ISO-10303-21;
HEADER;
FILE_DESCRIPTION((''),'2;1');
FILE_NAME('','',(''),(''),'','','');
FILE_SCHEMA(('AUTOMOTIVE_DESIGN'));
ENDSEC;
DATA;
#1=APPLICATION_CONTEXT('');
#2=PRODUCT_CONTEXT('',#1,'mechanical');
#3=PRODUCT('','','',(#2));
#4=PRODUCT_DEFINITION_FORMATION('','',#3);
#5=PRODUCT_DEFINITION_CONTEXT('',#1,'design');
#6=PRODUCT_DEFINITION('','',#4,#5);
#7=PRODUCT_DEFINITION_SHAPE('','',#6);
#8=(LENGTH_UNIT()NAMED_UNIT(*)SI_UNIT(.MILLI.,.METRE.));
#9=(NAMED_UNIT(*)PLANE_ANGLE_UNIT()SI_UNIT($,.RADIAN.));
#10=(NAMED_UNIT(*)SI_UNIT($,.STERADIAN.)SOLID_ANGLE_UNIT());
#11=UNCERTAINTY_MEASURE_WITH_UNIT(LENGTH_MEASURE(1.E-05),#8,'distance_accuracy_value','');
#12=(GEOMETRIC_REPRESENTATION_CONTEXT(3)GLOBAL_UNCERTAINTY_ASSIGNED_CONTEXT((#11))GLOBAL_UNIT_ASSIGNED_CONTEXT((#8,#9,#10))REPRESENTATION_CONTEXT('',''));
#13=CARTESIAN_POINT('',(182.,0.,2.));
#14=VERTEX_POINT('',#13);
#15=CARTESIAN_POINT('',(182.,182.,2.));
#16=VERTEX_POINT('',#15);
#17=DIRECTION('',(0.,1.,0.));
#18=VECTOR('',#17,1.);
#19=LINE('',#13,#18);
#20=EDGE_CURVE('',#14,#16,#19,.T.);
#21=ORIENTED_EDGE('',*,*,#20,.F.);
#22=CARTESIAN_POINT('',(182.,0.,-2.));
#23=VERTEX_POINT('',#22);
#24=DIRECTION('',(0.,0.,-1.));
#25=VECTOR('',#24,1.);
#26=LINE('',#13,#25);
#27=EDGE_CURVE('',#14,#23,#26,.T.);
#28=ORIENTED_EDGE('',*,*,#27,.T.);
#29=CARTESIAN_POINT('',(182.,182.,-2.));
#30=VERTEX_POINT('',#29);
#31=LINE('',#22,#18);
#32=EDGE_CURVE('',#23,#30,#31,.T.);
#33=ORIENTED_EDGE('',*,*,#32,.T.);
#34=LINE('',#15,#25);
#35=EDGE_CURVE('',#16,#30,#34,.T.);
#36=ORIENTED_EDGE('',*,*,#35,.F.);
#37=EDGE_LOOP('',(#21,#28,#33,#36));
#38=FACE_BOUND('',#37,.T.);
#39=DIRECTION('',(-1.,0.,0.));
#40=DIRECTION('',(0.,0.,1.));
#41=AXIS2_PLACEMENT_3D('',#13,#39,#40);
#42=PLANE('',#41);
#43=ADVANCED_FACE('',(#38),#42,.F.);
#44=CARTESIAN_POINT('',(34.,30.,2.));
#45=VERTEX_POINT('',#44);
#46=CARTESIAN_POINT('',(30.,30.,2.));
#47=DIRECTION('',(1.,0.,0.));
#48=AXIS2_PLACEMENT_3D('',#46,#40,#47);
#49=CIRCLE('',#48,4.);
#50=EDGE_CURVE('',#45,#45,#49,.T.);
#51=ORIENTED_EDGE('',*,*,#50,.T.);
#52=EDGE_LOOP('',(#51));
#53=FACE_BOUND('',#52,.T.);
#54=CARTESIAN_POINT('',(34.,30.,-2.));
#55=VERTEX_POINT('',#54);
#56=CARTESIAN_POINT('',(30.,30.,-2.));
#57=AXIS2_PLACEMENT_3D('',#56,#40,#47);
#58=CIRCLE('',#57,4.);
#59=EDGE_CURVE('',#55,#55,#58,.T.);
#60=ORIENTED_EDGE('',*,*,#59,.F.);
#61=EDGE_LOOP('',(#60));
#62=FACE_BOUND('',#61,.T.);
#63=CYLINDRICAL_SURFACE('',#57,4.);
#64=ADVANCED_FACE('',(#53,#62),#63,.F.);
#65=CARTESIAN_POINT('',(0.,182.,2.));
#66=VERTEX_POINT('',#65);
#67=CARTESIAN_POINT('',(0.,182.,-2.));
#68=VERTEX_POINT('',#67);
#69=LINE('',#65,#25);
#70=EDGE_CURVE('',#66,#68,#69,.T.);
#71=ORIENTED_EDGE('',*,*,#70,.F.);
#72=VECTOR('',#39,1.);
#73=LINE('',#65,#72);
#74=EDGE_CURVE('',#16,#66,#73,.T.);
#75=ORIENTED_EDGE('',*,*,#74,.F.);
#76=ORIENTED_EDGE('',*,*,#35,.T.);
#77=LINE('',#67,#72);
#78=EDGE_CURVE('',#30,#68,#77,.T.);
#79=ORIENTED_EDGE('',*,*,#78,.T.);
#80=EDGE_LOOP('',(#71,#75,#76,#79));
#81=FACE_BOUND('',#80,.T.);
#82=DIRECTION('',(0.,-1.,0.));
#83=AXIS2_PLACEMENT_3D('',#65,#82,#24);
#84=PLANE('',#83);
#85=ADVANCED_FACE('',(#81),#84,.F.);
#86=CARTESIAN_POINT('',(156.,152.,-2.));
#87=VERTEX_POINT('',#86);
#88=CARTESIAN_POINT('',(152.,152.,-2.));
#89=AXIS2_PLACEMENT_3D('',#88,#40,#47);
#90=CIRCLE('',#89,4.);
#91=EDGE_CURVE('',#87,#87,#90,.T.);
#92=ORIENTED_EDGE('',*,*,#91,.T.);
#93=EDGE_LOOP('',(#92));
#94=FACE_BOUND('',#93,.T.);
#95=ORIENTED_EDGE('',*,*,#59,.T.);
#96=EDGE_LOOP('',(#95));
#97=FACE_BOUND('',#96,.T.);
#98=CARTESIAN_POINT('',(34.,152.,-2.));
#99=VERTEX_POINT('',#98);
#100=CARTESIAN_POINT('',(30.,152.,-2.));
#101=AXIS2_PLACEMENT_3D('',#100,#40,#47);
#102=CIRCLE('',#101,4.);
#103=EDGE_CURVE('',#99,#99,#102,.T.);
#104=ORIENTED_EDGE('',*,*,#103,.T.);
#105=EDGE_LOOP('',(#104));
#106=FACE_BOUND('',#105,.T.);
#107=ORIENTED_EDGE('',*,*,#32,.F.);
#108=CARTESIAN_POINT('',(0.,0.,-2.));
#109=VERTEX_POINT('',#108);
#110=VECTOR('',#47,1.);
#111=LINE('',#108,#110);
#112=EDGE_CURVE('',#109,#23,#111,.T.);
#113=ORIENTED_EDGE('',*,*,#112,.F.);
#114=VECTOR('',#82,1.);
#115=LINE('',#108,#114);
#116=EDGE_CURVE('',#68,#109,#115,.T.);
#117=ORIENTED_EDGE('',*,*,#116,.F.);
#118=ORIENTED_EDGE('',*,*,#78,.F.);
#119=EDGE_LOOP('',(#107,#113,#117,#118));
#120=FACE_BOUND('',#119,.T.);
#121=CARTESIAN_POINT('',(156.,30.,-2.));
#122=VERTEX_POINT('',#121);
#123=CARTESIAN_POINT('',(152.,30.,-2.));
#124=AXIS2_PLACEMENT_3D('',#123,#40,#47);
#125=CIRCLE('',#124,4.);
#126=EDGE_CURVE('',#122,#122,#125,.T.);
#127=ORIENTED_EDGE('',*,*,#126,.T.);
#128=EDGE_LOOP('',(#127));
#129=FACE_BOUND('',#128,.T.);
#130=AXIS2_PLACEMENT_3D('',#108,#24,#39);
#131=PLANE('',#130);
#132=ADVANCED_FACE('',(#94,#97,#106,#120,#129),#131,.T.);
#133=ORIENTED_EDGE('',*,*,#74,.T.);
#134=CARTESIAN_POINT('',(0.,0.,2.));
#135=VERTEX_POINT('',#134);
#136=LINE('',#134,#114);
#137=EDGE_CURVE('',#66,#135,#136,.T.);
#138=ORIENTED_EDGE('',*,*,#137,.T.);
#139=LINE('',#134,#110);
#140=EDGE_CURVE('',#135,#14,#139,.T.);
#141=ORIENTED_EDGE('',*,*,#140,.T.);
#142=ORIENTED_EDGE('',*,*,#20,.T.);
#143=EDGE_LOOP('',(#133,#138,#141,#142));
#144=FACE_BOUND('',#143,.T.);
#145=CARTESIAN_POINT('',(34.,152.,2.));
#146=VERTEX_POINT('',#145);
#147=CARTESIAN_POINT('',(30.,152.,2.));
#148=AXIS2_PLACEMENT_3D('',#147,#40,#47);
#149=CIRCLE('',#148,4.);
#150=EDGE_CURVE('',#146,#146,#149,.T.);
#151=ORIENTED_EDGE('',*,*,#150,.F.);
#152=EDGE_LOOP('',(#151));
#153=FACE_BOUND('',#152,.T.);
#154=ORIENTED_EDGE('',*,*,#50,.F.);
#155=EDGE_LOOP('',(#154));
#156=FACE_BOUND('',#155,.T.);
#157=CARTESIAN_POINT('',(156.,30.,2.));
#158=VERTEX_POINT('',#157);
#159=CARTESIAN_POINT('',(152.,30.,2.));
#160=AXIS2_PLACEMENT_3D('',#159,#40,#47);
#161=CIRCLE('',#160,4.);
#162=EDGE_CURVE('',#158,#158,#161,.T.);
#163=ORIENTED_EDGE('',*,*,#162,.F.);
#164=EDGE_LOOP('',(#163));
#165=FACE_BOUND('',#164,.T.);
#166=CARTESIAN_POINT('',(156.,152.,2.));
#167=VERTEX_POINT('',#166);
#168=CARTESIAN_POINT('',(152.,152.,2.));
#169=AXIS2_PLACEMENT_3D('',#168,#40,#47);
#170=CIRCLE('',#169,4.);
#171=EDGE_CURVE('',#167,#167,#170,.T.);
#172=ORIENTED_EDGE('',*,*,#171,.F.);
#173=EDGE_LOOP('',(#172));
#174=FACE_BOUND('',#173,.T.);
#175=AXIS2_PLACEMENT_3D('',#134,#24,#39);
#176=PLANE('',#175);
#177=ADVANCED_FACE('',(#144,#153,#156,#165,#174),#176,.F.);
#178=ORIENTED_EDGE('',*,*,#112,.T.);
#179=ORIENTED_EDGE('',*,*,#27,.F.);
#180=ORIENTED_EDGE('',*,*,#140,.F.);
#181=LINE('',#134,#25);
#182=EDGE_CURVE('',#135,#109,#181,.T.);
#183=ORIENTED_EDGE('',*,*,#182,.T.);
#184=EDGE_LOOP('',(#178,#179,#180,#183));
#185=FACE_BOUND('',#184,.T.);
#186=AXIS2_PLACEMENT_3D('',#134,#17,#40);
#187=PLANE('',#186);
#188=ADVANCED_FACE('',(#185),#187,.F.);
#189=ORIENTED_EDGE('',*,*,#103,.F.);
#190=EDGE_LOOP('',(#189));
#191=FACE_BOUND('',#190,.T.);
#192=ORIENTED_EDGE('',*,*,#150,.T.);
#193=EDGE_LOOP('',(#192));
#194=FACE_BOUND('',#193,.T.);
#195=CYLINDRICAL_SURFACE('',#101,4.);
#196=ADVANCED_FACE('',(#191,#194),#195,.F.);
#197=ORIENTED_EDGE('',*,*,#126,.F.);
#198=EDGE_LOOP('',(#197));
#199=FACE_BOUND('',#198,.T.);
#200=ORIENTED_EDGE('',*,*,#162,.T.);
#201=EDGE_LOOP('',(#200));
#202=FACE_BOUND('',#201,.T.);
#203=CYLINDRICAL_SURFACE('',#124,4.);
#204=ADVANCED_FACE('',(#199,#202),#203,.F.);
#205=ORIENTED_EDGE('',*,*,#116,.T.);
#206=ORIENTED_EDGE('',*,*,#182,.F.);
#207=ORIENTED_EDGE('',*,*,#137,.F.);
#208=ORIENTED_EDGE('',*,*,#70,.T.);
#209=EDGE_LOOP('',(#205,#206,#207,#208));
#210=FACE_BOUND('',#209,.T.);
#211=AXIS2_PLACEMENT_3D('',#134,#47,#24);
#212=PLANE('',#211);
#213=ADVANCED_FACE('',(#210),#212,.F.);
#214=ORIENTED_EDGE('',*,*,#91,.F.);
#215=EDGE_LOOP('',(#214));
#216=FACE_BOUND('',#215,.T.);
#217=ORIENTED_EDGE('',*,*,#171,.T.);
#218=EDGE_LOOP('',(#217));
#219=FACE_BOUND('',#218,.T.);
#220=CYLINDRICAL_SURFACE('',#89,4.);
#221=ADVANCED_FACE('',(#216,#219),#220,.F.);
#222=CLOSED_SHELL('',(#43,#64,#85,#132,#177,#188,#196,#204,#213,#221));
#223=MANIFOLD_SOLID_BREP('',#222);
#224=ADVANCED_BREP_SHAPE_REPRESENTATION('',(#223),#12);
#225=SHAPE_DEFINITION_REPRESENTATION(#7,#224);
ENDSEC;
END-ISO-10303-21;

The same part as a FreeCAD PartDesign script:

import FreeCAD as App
import Part
import Sketcher
from FreeCAD import Vector


def add_polygon(sketch, points):
    """Adds a closed chain of lines whose ends are joined by coincident constraints."""
    first, n = sketch.GeometryCount, len(points)
    for a, b in zip(points, points[1:] + points[:1]):
        sketch.addGeometry(Part.LineSegment(App.Vector(*a, 0), App.Vector(*b, 0)), False)
    for i in range(n):
        sketch.addConstraint(Sketcher.Constraint("Coincident", first + i, 2, first + (i + 1) % n, 1))

doc = App.newDocument("Part")
body = doc.addObject("PartDesign::Body", "Body")

# Sketch on XY plane
sketch1 = body.newObject("Sketcher::SketchObject", "Sketch")
sketch1.AttachmentSupport = (doc.getObject("XY_Plane"), [""])
sketch1.MapMode = "FlatFace"
add_polygon(sketch1, [(0, 182), (0, 0), (182, 0), (182, 182)])  # lines 0-3
sketch1.addConstraint([
    Sketcher.Constraint("Vertical", 0),
    Sketcher.Constraint("Horizontal", 1),
    Sketcher.Constraint("Vertical", 2),
    Sketcher.Constraint("Horizontal", 3),
    Sketcher.Constraint("Coincident", 0, 2, -1, 1),
    Sketcher.Constraint("Equal", 3, 0),
    Sketcher.Constraint("DistanceX", 1, 1, 1, 2, 182.0),
])
pad1 = body.newObject("PartDesign::Pad", "Pad")
pad1.Profile = sketch1
pad1.Length = 4
pad1.Midplane = True

# Sketch on XY plane
sketch2 = body.newObject("Sketcher::SketchObject", "Sketch001")
sketch2.AttachmentSupport = (doc.getObject("XY_Plane"), [""])
sketch2.MapMode = "FlatFace"
sketch2.AttachmentOffset = App.Placement(Vector(0, 0, 2), App.Rotation())
sketch2.addGeometry([
    Part.Circle(Vector(30, 152, 0), Vector(0, 0, 1), 4),
    Part.Circle(Vector(152, 152, 0), Vector(0, 0, 1), 4),
    Part.Circle(Vector(152, 30, 0), Vector(0, 0, 1), 4),
    Part.Circle(Vector(30, 30, 0), Vector(0, 0, 1), 4),
], False)
sketch2.addConstraint([
    Sketcher.Constraint("Equal", 0, 1),
    Sketcher.Constraint("Equal", 1, 2),
    Sketcher.Constraint("Equal", 2, 3),
    Sketcher.Constraint("Horizontal", 0, 3, 1, 3),
    Sketcher.Constraint("Horizontal", 2, 3, 3, 3),
    Sketcher.Constraint("Vertical", 1, 3, 2, 3),
    Sketcher.Constraint("Vertical", 0, 3, 3, 3),
    Sketcher.Constraint("Diameter", 0, 8.0),
    Sketcher.Constraint("DistanceX", -1, 1, 0, 3, 30.0),
    Sketcher.Constraint("DistanceY", -1, 1, 0, 3, 152.0),
    Sketcher.Constraint("DistanceX", -1, 1, 1, 3, 152.0),
    Sketcher.Constraint("DistanceY", -1, 1, 2, 3, 30.0),
])
pocket1 = body.newObject("PartDesign::Pocket", "Pocket")
pocket1.Profile = sketch2
pocket1.Length = 4

doc.recompute()
